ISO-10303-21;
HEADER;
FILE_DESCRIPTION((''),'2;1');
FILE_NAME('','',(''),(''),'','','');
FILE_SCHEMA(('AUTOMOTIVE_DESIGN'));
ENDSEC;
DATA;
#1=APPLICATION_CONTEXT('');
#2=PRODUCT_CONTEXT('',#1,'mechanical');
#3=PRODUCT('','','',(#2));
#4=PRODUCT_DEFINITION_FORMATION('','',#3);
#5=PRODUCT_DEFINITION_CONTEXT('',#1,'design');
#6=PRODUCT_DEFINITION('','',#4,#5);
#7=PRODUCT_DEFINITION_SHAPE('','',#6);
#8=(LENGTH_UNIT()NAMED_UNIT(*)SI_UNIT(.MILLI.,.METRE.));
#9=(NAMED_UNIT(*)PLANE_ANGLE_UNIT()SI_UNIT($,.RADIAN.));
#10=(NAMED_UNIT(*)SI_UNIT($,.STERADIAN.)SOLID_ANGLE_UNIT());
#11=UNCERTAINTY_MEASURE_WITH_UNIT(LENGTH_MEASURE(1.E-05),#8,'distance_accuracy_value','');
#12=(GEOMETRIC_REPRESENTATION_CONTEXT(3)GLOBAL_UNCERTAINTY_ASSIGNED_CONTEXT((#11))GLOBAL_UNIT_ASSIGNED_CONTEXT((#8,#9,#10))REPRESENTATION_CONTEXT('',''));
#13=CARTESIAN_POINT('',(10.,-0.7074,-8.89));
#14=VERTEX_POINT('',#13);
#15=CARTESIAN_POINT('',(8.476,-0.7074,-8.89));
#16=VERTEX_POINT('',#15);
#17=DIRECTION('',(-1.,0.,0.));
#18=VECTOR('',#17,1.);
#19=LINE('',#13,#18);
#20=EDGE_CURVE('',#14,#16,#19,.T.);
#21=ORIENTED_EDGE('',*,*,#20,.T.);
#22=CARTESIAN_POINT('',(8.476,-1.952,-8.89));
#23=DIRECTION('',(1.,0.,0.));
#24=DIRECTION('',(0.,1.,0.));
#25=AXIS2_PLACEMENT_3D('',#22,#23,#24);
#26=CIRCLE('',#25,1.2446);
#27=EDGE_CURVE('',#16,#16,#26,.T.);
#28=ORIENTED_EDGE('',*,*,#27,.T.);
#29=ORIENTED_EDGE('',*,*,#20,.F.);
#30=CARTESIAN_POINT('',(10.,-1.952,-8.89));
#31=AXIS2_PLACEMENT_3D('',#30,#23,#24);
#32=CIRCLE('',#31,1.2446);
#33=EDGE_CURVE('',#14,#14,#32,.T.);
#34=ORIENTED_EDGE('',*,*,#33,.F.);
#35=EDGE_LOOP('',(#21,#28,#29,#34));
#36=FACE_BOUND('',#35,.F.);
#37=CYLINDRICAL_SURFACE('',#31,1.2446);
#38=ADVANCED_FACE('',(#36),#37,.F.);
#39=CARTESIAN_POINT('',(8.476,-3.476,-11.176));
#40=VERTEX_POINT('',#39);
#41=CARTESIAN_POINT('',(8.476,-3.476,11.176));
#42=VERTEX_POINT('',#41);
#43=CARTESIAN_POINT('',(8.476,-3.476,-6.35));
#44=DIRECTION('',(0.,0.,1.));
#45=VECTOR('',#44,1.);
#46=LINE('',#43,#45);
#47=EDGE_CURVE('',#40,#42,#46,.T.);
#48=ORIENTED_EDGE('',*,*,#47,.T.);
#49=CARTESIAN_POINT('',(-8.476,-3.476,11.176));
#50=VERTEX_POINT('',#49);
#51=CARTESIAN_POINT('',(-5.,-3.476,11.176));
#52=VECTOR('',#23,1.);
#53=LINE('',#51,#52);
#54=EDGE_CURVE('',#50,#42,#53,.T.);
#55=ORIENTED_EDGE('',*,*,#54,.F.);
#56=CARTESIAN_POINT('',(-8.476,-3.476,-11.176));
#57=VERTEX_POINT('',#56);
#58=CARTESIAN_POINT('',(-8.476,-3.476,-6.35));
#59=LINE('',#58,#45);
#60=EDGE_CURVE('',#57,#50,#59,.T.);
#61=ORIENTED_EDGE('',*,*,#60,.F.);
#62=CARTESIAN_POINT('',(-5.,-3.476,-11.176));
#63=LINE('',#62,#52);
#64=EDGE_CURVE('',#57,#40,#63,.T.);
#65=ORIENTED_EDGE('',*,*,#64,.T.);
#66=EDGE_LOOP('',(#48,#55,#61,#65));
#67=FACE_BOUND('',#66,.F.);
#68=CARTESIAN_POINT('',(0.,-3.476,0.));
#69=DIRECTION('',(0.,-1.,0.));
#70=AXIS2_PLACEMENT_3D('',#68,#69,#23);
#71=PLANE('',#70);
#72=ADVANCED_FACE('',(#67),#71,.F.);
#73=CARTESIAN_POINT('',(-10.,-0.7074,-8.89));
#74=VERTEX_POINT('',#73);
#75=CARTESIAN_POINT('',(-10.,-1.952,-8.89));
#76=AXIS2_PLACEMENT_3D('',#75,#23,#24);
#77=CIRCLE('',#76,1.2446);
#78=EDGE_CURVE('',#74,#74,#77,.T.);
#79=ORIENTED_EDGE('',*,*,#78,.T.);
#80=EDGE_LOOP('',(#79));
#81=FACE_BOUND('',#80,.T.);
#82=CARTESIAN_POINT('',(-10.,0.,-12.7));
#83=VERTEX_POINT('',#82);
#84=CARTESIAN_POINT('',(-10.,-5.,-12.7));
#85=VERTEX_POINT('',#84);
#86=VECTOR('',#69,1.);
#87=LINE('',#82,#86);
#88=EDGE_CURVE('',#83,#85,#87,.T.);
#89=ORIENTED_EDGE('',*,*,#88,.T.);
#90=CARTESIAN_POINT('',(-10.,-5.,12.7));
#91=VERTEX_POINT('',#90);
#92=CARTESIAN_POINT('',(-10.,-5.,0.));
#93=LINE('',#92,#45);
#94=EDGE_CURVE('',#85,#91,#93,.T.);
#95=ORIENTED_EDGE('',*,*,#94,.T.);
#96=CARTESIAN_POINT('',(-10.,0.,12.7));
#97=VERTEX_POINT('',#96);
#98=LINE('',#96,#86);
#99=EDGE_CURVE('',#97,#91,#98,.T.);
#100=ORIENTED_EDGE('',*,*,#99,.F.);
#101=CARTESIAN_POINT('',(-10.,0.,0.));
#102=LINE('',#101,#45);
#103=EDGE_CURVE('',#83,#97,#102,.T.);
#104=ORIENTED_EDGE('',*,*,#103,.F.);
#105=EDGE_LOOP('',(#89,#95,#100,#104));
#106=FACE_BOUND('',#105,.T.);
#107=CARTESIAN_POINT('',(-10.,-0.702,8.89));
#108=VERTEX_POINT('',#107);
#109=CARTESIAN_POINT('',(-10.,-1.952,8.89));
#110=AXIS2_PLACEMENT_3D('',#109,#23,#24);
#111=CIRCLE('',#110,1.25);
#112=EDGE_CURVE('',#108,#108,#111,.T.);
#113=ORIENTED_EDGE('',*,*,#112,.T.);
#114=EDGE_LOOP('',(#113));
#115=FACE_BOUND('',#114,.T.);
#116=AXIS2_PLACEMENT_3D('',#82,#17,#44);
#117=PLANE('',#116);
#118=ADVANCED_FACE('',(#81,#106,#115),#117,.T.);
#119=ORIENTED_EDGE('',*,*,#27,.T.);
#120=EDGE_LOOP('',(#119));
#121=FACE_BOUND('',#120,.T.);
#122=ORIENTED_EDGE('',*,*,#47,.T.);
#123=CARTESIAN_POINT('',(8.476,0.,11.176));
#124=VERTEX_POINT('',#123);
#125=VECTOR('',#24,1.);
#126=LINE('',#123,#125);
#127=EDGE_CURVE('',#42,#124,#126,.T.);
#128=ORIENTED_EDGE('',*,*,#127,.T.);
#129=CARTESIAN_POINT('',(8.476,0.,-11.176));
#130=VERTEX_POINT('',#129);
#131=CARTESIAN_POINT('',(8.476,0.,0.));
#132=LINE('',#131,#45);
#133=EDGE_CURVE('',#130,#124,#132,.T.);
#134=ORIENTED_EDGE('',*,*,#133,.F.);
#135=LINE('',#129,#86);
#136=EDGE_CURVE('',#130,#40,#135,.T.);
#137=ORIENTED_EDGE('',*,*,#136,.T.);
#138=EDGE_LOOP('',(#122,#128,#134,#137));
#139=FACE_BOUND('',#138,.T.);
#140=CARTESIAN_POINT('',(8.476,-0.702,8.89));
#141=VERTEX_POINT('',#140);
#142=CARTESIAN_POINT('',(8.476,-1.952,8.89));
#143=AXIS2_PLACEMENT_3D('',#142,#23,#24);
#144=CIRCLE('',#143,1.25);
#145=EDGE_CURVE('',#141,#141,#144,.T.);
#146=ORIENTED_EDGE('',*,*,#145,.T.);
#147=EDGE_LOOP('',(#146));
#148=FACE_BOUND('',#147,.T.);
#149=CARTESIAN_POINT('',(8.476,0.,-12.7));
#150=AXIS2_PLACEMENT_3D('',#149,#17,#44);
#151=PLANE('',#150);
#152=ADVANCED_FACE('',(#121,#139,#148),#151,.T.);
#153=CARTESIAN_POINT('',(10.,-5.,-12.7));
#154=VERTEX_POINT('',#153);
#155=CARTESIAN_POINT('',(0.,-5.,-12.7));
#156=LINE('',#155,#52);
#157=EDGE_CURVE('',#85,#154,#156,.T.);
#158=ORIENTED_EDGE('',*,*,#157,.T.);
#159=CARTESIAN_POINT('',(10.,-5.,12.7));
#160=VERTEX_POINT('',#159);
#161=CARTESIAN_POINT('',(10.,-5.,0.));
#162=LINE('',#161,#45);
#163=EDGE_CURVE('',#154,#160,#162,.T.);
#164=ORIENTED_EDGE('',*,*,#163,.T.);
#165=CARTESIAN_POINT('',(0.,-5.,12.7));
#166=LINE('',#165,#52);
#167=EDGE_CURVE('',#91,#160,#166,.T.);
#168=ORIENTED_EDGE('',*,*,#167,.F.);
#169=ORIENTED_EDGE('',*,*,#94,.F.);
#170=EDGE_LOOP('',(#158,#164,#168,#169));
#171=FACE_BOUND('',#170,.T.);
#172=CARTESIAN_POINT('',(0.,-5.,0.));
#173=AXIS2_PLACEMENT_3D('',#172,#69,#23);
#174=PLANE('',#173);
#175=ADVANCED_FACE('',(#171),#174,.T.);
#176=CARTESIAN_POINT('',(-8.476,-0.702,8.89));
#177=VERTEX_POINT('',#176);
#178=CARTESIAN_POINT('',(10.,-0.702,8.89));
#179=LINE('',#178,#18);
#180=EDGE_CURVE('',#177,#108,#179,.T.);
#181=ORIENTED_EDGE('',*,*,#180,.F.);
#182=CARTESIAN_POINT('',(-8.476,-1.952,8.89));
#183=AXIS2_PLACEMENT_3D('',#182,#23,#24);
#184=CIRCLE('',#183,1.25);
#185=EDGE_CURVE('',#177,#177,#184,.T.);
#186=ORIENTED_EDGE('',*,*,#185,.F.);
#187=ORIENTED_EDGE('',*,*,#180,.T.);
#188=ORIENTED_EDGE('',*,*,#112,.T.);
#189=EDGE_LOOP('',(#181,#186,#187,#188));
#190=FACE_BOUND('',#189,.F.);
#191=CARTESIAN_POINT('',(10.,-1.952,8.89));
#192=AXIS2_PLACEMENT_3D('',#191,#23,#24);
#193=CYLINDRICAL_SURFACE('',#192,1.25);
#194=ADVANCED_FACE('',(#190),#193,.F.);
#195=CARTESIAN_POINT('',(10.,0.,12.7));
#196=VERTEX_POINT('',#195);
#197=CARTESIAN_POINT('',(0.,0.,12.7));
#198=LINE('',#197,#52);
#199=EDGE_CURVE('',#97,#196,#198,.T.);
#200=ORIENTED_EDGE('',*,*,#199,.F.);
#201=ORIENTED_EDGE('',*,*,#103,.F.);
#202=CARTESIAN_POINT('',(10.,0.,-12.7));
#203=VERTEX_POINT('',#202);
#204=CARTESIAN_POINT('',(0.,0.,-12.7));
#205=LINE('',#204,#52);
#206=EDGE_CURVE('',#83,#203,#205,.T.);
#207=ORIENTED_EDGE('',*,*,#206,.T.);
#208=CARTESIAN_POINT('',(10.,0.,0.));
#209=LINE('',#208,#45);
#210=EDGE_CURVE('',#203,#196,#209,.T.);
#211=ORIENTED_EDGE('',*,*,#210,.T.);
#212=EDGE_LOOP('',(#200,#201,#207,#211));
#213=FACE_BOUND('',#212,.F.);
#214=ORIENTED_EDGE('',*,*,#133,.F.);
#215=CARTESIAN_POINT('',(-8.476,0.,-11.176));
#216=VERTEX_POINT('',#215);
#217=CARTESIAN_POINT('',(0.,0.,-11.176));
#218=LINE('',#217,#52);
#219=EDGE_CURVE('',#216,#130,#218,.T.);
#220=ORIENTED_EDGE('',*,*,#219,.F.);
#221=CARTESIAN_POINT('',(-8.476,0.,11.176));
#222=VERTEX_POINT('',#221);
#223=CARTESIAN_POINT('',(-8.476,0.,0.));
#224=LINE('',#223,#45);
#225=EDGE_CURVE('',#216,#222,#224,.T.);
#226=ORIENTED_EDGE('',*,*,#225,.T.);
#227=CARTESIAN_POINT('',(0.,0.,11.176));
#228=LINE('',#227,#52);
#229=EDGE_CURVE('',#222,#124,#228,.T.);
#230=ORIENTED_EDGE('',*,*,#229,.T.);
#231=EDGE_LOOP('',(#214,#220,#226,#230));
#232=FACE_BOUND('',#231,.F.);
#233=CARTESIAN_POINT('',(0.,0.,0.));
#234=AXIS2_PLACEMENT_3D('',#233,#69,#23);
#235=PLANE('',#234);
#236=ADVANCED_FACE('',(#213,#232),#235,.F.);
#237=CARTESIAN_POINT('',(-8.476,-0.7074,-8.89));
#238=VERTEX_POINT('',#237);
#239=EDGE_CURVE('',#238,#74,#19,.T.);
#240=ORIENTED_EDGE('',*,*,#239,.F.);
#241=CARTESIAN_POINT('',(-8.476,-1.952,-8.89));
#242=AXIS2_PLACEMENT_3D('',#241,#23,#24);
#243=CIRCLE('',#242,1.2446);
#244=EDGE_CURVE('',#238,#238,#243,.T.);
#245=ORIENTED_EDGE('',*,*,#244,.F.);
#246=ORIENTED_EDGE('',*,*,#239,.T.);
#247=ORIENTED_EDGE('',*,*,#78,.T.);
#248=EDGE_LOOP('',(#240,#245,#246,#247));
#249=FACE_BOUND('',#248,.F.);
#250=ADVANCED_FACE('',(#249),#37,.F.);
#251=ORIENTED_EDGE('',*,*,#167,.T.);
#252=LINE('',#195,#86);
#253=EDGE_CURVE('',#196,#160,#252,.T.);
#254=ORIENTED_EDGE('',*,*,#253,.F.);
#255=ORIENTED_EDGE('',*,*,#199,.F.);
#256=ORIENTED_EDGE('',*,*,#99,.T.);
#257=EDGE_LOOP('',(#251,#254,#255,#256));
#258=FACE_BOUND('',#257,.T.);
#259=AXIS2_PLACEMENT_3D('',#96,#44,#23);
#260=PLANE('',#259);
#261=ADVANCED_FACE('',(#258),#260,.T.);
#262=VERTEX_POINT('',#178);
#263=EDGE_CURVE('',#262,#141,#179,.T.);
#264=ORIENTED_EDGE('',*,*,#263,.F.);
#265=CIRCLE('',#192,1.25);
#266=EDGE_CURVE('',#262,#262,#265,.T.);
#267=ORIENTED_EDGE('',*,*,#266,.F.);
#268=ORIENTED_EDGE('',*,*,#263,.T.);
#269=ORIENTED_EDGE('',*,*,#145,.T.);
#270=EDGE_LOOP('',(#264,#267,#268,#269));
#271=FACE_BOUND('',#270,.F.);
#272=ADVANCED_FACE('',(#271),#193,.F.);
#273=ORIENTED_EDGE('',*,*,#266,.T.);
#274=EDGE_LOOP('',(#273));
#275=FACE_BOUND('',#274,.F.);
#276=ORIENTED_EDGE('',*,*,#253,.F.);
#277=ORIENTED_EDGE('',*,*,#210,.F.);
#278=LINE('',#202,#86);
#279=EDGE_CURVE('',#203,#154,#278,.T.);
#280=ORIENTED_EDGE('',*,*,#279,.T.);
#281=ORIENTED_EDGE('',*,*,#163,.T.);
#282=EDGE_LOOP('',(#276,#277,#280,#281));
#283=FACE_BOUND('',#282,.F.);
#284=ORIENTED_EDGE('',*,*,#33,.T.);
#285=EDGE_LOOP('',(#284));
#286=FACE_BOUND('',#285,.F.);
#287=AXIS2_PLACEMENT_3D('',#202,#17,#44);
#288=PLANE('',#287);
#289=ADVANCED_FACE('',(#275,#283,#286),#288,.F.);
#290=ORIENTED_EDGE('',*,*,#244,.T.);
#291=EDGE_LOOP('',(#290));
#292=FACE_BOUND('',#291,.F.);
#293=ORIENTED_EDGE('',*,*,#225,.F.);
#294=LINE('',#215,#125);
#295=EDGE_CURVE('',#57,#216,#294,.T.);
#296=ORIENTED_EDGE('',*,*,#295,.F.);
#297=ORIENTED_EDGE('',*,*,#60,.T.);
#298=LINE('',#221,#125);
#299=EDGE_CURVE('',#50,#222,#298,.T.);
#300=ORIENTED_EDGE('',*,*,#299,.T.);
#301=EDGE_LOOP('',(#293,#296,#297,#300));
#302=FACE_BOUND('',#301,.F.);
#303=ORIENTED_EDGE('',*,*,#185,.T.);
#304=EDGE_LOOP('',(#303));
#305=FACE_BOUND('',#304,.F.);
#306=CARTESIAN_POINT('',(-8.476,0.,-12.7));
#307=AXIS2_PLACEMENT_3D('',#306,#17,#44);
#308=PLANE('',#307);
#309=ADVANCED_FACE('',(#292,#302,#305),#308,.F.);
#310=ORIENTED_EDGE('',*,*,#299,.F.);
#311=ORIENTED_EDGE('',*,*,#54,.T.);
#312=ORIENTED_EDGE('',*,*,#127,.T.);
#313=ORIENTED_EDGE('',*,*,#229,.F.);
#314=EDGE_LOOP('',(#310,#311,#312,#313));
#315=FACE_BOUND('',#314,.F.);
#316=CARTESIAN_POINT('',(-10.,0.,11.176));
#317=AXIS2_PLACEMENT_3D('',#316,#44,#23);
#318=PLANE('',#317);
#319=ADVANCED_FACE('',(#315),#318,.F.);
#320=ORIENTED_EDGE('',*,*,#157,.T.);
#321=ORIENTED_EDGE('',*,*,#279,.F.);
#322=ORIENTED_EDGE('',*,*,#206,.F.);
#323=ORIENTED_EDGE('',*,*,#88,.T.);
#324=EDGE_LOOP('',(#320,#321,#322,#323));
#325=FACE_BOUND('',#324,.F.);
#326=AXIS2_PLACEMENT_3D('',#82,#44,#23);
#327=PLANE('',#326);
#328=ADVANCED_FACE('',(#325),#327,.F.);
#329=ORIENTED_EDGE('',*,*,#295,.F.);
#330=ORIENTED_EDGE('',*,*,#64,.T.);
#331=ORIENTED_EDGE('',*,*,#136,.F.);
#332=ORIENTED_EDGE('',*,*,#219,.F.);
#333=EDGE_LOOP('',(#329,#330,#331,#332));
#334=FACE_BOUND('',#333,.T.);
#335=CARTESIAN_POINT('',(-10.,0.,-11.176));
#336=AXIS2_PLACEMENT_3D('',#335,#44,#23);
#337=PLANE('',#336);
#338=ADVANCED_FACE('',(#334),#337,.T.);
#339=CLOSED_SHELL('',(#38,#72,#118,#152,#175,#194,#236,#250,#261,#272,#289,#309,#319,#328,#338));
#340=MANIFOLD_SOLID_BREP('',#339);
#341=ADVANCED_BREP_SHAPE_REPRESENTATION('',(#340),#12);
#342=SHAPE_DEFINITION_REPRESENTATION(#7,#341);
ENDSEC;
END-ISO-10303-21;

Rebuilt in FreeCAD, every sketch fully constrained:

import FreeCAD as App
import Part
import Sketcher

V = App.Vector
Q = App.Units.Quantity


def faces_at(feature, points):
    """Names of the faces that lie closest to the given points."""
    faces = feature.Shape.Faces
    near = lambda p: min(range(len(faces)), key=lambda i: faces[i].distToShape(Part.Vertex(*p))[0])
    return sorted({f"Face{near(p) + 1}" for p in points})


def add_polygon(sketch, points):
    """Adds a closed chain of lines whose ends are joined by coincident constraints."""
    first, n = sketch.GeometryCount, len(points)
    for a, b in zip(points, points[1:] + points[:1]):
        sketch.addGeometry(Part.LineSegment(App.Vector(*a, 0), App.Vector(*b, 0)), False)
    for i in range(n):
        sketch.addConstraint(Sketcher.Constraint("Coincident", first + i, 2, first + (i + 1) % n, 1))

doc = App.newDocument("Part")
body = doc.addObject("PartDesign::Body", "Body")

# Sketch on XZ plane
sketch1 = body.newObject("Sketcher::SketchObject", "Sketch")
sketch1.AttachmentSupport = (doc.getObject("XZ_Plane"), [""])
sketch1.MapMode = "FlatFace"
add_polygon(sketch1, [(-10, 13), (-10, -13), (10, -13), (10, 13)])  # lines 0-3
sketch1.addConstraint([
    Sketcher.Constraint("Vertical", 0),
    Sketcher.Constraint("Horizontal", 1),
    Sketcher.Constraint("Vertical", 2),
    Sketcher.Constraint("Horizontal", 3),
    Sketcher.Constraint("Symmetric", 0, 2, 2, 2, -1, 1),
    Sketcher.Constraint("DistanceX", 1, 1, 1, 2, Q("20 mm")),
    Sketcher.Constraint("DistanceY", 0, 2, 0, 1, Q("25.4 mm")),
])
pad1 = body.newObject("PartDesign::Pad", "Pad")
pad1.Profile = sketch1
pad1.Length = 5
doc.recompute()

thickness = body.newObject("PartDesign::Thickness", "Thickness")
thickness.Base = (pad1, faces_at(pad1, [(0, 0, 0)]))
thickness.Value = 1.524
thickness.Reversed = True
thickness.Join = "Arc"

# Sketch on YZ plane
sketch2 = body.newObject("Sketcher::SketchObject", "Sketch001")
sketch2.AttachmentSupport = (doc.getObject("YZ_Plane"), [""])
sketch2.MapMode = "FlatFace"
sketch2.AttachmentOffset = App.Placement(V(0, 0, 10), App.Rotation())
sketch2.addGeometry([
    Part.Circle(V(-2, 8.9, 0), V(0, 0, 1), 1.2),
    Part.Circle(V(-2, -8.9, 0), V(0, 0, 1), 1.2),
], False)
sketch2.addConstraint([
    Sketcher.Constraint("Symmetric", 0, 3, 1, 3, -1),
    Sketcher.Constraint("Diameter", 0, Q("2.5 mm")),
    Sketcher.Constraint("Diameter", 1, Q("2.4892 mm")),
    Sketcher.Constraint("DistanceY", -1, 1, 0, 3, Q("8.89 mm")),
    Sketcher.Constraint("DistanceX", 0, 3, -1, 1, Q("1.952 mm")),
])
pocket1 = body.newObject("PartDesign::Pocket", "Pocket")
pocket1.Profile = sketch2
pocket1.Length = 25.4

doc.recompute()
